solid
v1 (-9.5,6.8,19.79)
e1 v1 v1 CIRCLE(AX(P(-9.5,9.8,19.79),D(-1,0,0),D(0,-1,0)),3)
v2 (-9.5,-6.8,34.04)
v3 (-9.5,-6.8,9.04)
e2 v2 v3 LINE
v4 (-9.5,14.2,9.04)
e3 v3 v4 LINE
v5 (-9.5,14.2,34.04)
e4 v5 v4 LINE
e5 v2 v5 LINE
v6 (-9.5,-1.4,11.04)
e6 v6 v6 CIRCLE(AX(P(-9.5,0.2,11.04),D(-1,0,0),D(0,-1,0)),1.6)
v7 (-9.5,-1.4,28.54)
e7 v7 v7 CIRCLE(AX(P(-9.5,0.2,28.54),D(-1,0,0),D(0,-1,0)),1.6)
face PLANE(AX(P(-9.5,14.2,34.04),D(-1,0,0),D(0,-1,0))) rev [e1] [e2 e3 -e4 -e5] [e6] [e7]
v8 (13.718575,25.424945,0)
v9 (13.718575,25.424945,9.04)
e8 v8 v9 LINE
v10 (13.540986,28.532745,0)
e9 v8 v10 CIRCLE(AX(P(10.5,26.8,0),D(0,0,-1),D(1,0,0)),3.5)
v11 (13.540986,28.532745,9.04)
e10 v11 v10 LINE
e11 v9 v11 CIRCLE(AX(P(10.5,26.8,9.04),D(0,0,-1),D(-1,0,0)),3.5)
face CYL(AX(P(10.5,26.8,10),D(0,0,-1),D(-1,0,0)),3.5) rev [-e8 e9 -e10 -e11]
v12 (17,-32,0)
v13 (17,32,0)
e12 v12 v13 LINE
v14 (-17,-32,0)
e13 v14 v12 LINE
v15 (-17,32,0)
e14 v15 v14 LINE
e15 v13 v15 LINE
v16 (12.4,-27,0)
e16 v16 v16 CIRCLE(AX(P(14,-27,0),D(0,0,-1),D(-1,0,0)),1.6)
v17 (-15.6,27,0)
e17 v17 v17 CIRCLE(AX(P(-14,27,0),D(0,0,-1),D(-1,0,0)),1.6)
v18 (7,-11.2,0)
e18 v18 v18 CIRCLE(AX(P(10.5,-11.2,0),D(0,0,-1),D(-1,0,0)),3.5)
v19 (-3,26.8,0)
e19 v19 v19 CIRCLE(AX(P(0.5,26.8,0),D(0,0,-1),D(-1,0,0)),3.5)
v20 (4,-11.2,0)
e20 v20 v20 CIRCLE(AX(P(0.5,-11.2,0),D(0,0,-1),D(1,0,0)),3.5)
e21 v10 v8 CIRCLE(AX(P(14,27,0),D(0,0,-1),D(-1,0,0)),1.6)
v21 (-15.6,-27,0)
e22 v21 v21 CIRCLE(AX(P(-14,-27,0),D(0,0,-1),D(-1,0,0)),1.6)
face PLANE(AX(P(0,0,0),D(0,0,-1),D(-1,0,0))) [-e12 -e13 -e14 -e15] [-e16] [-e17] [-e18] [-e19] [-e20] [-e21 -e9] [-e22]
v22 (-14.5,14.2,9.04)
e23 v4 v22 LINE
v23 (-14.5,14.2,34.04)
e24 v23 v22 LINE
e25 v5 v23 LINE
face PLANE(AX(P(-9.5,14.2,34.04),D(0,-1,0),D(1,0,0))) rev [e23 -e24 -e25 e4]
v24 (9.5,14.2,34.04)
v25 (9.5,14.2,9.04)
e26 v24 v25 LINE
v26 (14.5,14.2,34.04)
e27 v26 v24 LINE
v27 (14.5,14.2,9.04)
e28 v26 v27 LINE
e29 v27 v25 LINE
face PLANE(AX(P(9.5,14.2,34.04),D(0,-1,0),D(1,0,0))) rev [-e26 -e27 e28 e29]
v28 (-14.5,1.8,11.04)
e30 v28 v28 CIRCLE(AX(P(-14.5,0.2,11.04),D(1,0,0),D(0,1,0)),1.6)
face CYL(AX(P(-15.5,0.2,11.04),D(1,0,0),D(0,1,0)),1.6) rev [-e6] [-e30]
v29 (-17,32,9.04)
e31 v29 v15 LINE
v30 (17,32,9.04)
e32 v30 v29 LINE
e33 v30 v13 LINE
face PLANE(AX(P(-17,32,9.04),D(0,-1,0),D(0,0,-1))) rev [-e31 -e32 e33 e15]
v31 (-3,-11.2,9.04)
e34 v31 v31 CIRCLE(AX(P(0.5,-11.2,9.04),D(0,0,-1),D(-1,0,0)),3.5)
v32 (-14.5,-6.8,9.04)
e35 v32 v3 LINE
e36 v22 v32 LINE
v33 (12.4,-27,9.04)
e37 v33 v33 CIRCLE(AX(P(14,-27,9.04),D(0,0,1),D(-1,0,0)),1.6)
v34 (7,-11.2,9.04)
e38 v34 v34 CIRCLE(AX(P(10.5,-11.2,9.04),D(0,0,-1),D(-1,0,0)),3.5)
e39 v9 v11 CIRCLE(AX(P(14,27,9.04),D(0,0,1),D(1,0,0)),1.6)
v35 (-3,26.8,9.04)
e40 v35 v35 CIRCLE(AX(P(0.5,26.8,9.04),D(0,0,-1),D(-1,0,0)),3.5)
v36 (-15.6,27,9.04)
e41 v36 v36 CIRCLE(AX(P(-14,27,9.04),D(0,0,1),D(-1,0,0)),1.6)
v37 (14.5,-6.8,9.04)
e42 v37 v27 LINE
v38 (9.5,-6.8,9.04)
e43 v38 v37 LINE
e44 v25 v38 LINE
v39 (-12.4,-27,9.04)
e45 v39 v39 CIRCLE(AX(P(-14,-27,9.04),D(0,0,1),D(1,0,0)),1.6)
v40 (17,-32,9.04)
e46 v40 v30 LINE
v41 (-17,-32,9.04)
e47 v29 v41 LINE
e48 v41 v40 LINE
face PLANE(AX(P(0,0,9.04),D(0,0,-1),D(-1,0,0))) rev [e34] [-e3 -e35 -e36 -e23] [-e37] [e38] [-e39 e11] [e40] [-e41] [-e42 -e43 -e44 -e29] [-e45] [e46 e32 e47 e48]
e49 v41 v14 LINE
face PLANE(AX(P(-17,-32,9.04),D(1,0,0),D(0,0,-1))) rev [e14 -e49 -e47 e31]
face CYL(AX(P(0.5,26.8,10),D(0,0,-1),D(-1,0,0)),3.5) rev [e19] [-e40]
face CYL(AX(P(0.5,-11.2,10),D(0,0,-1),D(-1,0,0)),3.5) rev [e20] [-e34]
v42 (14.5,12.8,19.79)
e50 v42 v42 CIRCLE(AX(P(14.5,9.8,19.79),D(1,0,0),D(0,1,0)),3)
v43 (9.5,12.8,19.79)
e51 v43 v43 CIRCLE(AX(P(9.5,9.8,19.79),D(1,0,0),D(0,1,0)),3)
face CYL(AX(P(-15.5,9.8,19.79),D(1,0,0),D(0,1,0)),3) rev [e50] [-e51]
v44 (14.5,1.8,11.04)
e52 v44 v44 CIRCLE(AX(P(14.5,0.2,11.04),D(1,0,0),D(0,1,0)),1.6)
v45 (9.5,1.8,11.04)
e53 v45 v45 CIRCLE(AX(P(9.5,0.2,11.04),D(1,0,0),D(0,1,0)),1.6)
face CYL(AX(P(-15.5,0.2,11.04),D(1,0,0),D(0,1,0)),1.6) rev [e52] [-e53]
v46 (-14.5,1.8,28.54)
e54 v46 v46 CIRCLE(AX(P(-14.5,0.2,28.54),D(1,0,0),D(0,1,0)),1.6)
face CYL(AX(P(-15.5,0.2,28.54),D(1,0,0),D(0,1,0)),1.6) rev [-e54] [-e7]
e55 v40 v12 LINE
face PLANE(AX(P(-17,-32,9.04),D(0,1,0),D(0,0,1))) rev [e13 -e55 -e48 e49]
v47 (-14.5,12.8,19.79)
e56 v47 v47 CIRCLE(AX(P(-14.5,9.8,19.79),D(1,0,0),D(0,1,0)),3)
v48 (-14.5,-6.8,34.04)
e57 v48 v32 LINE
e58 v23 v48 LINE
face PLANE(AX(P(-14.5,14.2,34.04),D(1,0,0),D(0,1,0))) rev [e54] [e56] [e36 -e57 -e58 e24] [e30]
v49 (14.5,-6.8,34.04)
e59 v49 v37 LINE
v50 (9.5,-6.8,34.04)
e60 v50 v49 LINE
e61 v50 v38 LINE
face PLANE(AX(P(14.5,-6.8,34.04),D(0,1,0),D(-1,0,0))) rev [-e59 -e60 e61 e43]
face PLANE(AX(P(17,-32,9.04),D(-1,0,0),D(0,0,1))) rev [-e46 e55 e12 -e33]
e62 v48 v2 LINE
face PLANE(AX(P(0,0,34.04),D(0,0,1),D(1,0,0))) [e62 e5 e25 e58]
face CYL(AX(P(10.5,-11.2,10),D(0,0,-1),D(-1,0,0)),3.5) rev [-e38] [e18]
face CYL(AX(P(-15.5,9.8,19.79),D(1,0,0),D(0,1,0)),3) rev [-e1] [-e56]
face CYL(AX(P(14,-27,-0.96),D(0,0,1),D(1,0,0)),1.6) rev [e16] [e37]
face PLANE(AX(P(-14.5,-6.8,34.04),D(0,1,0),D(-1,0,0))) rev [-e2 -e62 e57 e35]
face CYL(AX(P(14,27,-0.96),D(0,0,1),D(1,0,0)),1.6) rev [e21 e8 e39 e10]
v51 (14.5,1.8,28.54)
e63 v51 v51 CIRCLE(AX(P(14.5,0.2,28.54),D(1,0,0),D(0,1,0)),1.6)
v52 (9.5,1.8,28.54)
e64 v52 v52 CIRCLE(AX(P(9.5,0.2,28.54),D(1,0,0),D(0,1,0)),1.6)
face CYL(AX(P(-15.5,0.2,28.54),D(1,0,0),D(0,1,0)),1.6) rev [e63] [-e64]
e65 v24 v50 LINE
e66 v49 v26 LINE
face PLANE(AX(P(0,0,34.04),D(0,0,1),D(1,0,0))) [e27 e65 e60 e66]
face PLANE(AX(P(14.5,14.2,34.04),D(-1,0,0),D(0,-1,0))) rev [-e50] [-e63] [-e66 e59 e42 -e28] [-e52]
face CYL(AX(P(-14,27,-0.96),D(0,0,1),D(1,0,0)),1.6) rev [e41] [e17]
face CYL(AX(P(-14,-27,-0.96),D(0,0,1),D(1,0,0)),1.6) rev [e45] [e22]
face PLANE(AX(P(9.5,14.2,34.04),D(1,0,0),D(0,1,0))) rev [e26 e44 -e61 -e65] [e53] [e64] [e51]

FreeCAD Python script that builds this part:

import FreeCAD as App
import Part
import Sketcher
Q = App.Units.Quantity


def add_polygon(sketch, points):
    """Adds a closed chain of lines whose ends are joined by coincident constraints."""
    first, n = sketch.GeometryCount, len(points)
    for a, b in zip(points, points[1:] + points[:1]):
        sketch.addGeometry(Part.LineSegment(App.Vector(*a, 0), App.Vector(*b, 0)), False)
    for i in range(n):
        sketch.addConstraint(Sketcher.Constraint("Coincident", first + i, 2, first + (i + 1) % n, 1))

doc = App.newDocument("Part")
body = doc.addObject("PartDesign::Body", "Body")

# Sketch on XY plane
sketch1 = body.newObject("Sketcher::SketchObject", "Sketch")
sketch1.AttachmentSupport = (doc.getObject("XY_Plane"), [""])
sketch1.MapMode = "FlatFace"
add_polygon(sketch1, [(-17, 32), (-17, -32), (17, -32), (17, 32)])  # lines 0-3
sketch1.addConstraint([
    Sketcher.Constraint("Vertical", 0),
    Sketcher.Constraint("Horizontal", 1),
    Sketcher.Constraint("Vertical", 2),
    Sketcher.Constraint("Horizontal", 3),
    Sketcher.Constraint("Symmetric", 0, 2, 2, 2, -1, 1),
    Sketcher.Constraint("DistanceX", 1, 1, 1, 2, Q("34 mm")),
    Sketcher.Constraint("DistanceY", 0, 2, 0, 1, Q("64 mm")),
])
pad1 = body.newObject("PartDesign::Pad", "Pad")
pad1.Profile = sketch1
pad1.Length = 9.04

# Sketch on XY plane
sketch2 = body.newObject("Sketcher::SketchObject", "Sketch001")
sketch2.AttachmentSupport = (doc.getObject("XY_Plane"), [""])
sketch2.MapMode = "FlatFace"
sketch2.AttachmentOffset = App.Placement(App.Vector(0, 0, 9.04), App.Rotation())
add_polygon(sketch2, [(9.5, 14.2), (9.5, -6.8), (14.5, -6.8), (14.5, 14.2)])  # lines 0-3
add_polygon(sketch2, [(-14.5, 14.2), (-14.5, -6.8), (-9.5, -6.8), (-9.5, 14.2)])  # lines 4-7
sketch2.addConstraint([
    Sketcher.Constraint("Vertical", 0),
    Sketcher.Constraint("Horizontal", 1),
    Sketcher.Constraint("Vertical", 2),
    Sketcher.Constraint("Horizontal", 3),
    Sketcher.Constraint("Vertical", 4),
    Sketcher.Constraint("Horizontal", 5),
    Sketcher.Constraint("Vertical", 6),
    Sketcher.Constraint("Horizontal", 7),
    Sketcher.Constraint("Symmetric", 1, 2, 4, 2, -2),
    Sketcher.Constraint("Symmetric", 3, 2, 6, 2, -2),
    Sketcher.Constraint("DistanceX", 1, 1, 1, 2, Q("5 mm")),
    Sketcher.Constraint("DistanceY", 0, 2, 0, 1, Q("21 mm")),
    Sketcher.Constraint("DistanceX", 4, 2, 0, 2, Q("24 mm")),
    Sketcher.Constraint("DistanceY", 0, 2, -1, 1, Q("6.8 mm")),
])
pad2 = body.newObject("PartDesign::Pad", "Pad001")
pad2.Profile = sketch2
pad2.Length = 25

# Sketch on YZ plane
sketch3 = body.newObject("Sketcher::SketchObject", "Sketch002")
sketch3.AttachmentSupport = (doc.getObject("YZ_Plane"), [""])
sketch3.MapMode = "FlatFace"
sketch3.AttachmentOffset = App.Placement(App.Vector(0, 0, 14.5), App.Rotation())
sketch3.addGeometry([
    Part.Circle(App.Vector(0.2, 28.54, 0), App.Vector(0, 0, 1), 1.6),
    Part.Circle(App.Vector(0.2, 11.04, 0), App.Vector(0, 0, 1), 1.6),
    Part.Circle(App.Vector(9.8, 19.79, 0), App.Vector(0, 0, 1), 3),
], False)
sketch3.addConstraint([
    Sketcher.Constraint("Equal", 0, 1),
    Sketcher.Constraint("Vertical", 0, 3, 1, 3),
    Sketcher.Constraint("Diameter", 2, Q("6 mm")),
    Sketcher.Constraint("Diameter", 0, Q("3.2 mm")),
    Sketcher.Constraint("DistanceX", -1, 1, 0, 3, Q("0.2 mm")),
    Sketcher.Constraint("DistanceX", -1, 1, 2, 3, Q("9.8 mm")),
    Sketcher.Constraint("DistanceY", 1, 3, 0, 3, Q("17.5 mm")),
    Sketcher.Constraint("DistanceY", -1, 1, 0, 3, Q("28.54 mm")),
    Sketcher.Constraint("DistanceY", -1, 1, 2, 3, Q("19.79 mm")),
])
pocket1 = body.newObject("PartDesign::Pocket", "Pocket")
pocket1.Profile = sketch3
pocket1.Length = 30

# Sketch on XY plane
sketch4 = body.newObject("Sketcher::SketchObject", "Sketch003")
sketch4.AttachmentSupport = (doc.getObject("XY_Plane"), [""])
sketch4.MapMode = "FlatFace"
sketch4.AttachmentOffset = App.Placement(App.Vector(0, 0, 9.04), App.Rotation())
sketch4.addGeometry([
    Part.Circle(App.Vector(-14, -27, 0), App.Vector(0, 0, 1), 1.6),
    Part.Circle(App.Vector(-14, 27, 0), App.Vector(0, 0, 1), 1.6),
    Part.Circle(App.Vector(14, -27, 0), App.Vector(0, 0, 1), 1.6),
    Part.Circle(App.Vector(14, 27, 0), App.Vector(0, 0, 1), 1.6),
], False)
sketch4.addConstraint([
    Sketcher.Constraint("Equal", 0, 1),
    Sketcher.Constraint("Equal", 1, 2),
    Sketcher.Constraint("Equal", 2, 3),
    Sketcher.Constraint("Symmetric", 1, 3, 2, 3, -1, 1),
    Sketcher.Constraint("Symmetric", 0, 3, 3, 3, -1, 1),
    Sketcher.Constraint("Symmetric", 0, 3, 2, 3, -2),
    Sketcher.Constraint("Diameter", 0, Q("3.2 mm")),
    Sketcher.Constraint("DistanceX", 0, 3, -1, 1, Q("14 mm")),
    Sketcher.Constraint("DistanceY", 0, 3, -1, 1, Q("27 mm")),
])
pocket2 = body.newObject("PartDesign::Pocket", "Pocket001")
pocket2.Profile = sketch4
pocket2.Length = 10

# Sketch on XY plane
sketch5 = body.newObject("Sketcher::SketchObject", "Sketch004")
sketch5.AttachmentSupport = (doc.getObject("XY_Plane"), [""])
sketch5.MapMode = "FlatFace"
sketch5.addGeometry([
    Part.Circle(App.Vector(0.5, 26.8, 0), App.Vector(0, 0, 1), 3.5),
    Part.Circle(App.Vector(10.5, 26.8, 0), App.Vector(0, 0, 1), 3.5),
    Part.Circle(App.Vector(0.5, -11.2, 0), App.Vector(0, 0, 1), 3.5),
    Part.Circle(App.Vector(10.5, -11.2, 0), App.Vector(0, 0, 1), 3.5),
], False)
sketch5.addConstraint([
    Sketcher.Constraint("Equal", 0, 1),
    Sketcher.Constraint("Equal", 1, 2),
    Sketcher.Constraint("Equal", 2, 3),
    Sketcher.Constraint("Horizontal", 0, 3, 1, 3),
    Sketcher.Constraint("Horizontal", 2, 3, 3, 3),
    Sketcher.Constraint("Vertical", 0, 3, 2, 3),
    Sketcher.Constraint("Vertical", 1, 3, 3, 3),
    Sketcher.Constraint("Diameter", 0, Q("7 mm")),
    Sketcher.Constraint("DistanceX", 0, 3, 1, 3, Q("10 mm")),
    Sketcher.Constraint("DistanceY", 2, 3, 0, 3, Q("38 mm")),
    Sketcher.Constraint("DistanceX", -1, 1, 0, 3, Q("0.5 mm")),
    Sketcher.Constraint("DistanceY", -1, 1, 0, 3, Q("26.8 mm")),
])
pocket3 = body.newObject("PartDesign::Pocket", "Pocket002")
pocket3.Profile = sketch5
pocket3.Length = 10
pocket3.Reversed = True

doc.recompute()
